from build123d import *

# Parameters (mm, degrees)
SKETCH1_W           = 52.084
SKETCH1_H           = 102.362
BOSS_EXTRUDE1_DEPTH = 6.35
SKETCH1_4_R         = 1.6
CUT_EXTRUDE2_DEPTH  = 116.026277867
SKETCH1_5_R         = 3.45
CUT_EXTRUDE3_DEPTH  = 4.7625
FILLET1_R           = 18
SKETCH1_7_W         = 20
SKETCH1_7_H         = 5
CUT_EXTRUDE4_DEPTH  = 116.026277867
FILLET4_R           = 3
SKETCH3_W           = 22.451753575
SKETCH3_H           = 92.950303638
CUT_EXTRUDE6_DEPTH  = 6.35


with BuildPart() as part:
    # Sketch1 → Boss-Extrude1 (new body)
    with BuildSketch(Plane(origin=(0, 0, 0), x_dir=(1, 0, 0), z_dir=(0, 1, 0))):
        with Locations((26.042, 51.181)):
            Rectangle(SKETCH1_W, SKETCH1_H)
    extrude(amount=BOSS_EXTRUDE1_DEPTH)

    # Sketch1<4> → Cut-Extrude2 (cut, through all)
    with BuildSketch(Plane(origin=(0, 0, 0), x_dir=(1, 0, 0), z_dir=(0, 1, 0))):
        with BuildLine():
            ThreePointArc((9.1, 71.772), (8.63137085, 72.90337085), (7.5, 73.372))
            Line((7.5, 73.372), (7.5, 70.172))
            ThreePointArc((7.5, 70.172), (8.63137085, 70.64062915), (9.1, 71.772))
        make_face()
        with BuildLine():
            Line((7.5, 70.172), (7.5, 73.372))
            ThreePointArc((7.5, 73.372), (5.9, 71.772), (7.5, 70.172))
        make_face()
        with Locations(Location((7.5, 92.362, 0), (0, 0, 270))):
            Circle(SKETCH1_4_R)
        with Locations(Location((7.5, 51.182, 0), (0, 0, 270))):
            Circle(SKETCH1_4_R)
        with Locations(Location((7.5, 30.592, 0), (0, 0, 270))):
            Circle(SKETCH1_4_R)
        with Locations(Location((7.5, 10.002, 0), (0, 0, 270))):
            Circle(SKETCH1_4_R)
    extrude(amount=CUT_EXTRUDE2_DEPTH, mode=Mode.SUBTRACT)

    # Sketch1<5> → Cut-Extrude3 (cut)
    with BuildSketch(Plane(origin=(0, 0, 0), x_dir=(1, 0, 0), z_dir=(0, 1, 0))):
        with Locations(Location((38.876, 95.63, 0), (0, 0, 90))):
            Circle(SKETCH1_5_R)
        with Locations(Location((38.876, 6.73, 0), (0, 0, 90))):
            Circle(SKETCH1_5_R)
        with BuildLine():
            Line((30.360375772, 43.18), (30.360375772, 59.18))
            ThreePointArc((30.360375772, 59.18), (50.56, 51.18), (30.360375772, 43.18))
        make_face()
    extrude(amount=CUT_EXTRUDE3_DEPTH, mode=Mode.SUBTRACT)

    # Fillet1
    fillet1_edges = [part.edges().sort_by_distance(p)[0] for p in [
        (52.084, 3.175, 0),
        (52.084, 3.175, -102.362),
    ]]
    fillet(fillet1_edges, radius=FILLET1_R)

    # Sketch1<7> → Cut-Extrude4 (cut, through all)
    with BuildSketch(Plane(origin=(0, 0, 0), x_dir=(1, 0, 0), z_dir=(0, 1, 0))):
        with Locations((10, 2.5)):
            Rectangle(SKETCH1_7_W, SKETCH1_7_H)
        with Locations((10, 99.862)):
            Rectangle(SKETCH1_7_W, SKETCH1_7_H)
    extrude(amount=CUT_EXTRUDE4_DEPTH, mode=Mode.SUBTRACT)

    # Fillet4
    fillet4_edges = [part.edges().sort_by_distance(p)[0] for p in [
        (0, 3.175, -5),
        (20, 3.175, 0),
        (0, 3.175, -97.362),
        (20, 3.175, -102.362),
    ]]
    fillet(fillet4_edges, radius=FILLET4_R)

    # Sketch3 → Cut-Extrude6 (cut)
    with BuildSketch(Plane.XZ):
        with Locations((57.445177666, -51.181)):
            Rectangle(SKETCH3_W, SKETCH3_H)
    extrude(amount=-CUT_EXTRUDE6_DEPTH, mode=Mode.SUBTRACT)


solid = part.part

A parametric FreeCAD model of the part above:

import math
import FreeCAD as App
import Part
import Sketcher


def edges_at(feature, points):
    """Names of the edges that pass closest to the given points."""
    edges = feature.Shape.Edges
    near = lambda p: min(range(len(edges)), key=lambda i: edges[i].distToShape(Part.Vertex(*p))[0])
    return sorted({f"Edge{near(p) + 1}" for p in points})

doc = App.newDocument("Part")
body = doc.addObject("PartDesign::Body", "Body")

sketch1 = doc.addObject("Sketcher::SketchObject", "Sketch")
body.addObject(sketch1)
sketch1.AttachmentSupport = (doc.XZ_Plane, [""])
sketch1.MapMode = "FlatFace"
sketch1.addGeometry(Part.LineSegment(App.Vector(0, -102, 0), App.Vector(0, 0, 0)), False)
sketch1.addGeometry(Part.LineSegment(App.Vector(0, 0, 0), App.Vector(52, 0, 0)), False)
sketch1.addGeometry(Part.LineSegment(App.Vector(52, 0, 0), App.Vector(52, -102, 0)), False)
sketch1.addGeometry(Part.LineSegment(App.Vector(52, -102, 0), App.Vector(0, -102, 0)), False)
sketch1.addConstraint(Sketcher.Constraint("Coincident", 0, 2, 1, 1))
sketch1.addConstraint(Sketcher.Constraint("Coincident", 1, 2, 2, 1))
sketch1.addConstraint(Sketcher.Constraint("Coincident", 2, 2, 3, 1))
sketch1.addConstraint(Sketcher.Constraint("Coincident", 3, 2, 0, 1))
sketch1.addConstraint(Sketcher.Constraint("Vertical", 0))
sketch1.addConstraint(Sketcher.Constraint("Horizontal", 1))
sketch1.addConstraint(Sketcher.Constraint("Vertical", 2))
sketch1.addConstraint(Sketcher.Constraint("Horizontal", 3))
sketch1.addConstraint(Sketcher.Constraint("Coincident", 0, 2, -1, 1))
sketch1.addConstraint(Sketcher.Constraint("DistanceX", 1, 1, 1, 2, 52.084))
sketch1.addConstraint(Sketcher.Constraint("DistanceY", 0, 1, 0, 2, 102.362))
pad1 = doc.addObject("PartDesign::Pad", "Pad")
body.addObject(pad1)
pad1.Profile = sketch1
pad1.Length = 6.35
pad1.Reversed = True

sketch2 = doc.addObject("Sketcher::SketchObject", "Sketch001")
body.addObject(sketch2)
sketch2.AttachmentSupport = (doc.XZ_Plane, [""])
sketch2.MapMode = "FlatFace"
sketch2.addGeometry(Part.ArcOfCircle(Part.Circle(App.Vector(7.5, -71.8, 0), App.Vector(0, 0, 1), 1.6), math.radians(-90), math.radians(0)), False)
sketch2.addGeometry(Part.ArcOfCircle(Part.Circle(App.Vector(7.5, -71.8, 0), App.Vector(0, 0, 1), 1.6), math.radians(90), math.radians(270)), False)
sketch2.addGeometry(Part.ArcOfCircle(Part.Circle(App.Vector(7.5, -71.8, 0), App.Vector(0, 0, 1), 1.6), math.radians(0), math.radians(90)), False)
sketch2.addGeometry(Part.Circle(App.Vector(7.5, -92.4, 0), App.Vector(0, 0, 1), 1.6), False)
sketch2.addGeometry(Part.Circle(App.Vector(7.5, -51.2, 0), App.Vector(0, 0, 1), 1.6), False)
sketch2.addGeometry(Part.Circle(App.Vector(7.5, -30.6, 0), App.Vector(0, 0, 1), 1.6), False)
sketch2.addGeometry(Part.Circle(App.Vector(7.5, -10, 0), App.Vector(0, 0, 1), 1.6), False)
sketch2.addConstraint(Sketcher.Constraint("Tangent", 0, 1, 1, 2))
sketch2.addConstraint(Sketcher.Constraint("Tangent", 1, 1, 2, 2))
sketch2.addConstraint(Sketcher.Constraint("Tangent", 2, 1, 0, 2))
sketch2.addConstraint(Sketcher.Constraint("Equal", 2, 3))
sketch2.addConstraint(Sketcher.Constraint("Equal", 3, 4))
sketch2.addConstraint(Sketcher.Constraint("Equal", 4, 5))
sketch2.addConstraint(Sketcher.Constraint("Equal", 5, 6))
sketch2.addConstraint(Sketcher.Constraint("Horizontal", 1, 3, 2, 1))
sketch2.addConstraint(Sketcher.Constraint("Vertical", 2, 3, 3, 3))
sketch2.addConstraint(Sketcher.Constraint("Vertical", 3, 3, 4, 3))
sketch2.addConstraint(Sketcher.Constraint("Vertical", 4, 3, 5, 3))
sketch2.addConstraint(Sketcher.Constraint("Vertical", 5, 3, 6, 3))
sketch2.addConstraint(Sketcher.Constraint("Vertical", 6, 3, 0, 1))
sketch2.addConstraint(Sketcher.Constraint("Vertical", 0, 1, 1, 1))
sketch2.addConstraint(Sketcher.Constraint("Diameter", 3, 3.2))
sketch2.addConstraint(Sketcher.Constraint("DistanceX", -1, 1, 0, 3, 7.5))
sketch2.addConstraint(Sketcher.Constraint("DistanceY", 3, 3, 0, 3, 20.59))
sketch2.addConstraint(Sketcher.Constraint("DistanceY", 0, 3, 4, 3, 20.59))
sketch2.addConstraint(Sketcher.Constraint("DistanceY", 4, 3, 5, 3, 20.59))
sketch2.addConstraint(Sketcher.Constraint("DistanceY", 5, 3, 6, 3, 20.59))
sketch2.addConstraint(Sketcher.Constraint("DistanceY", 0, 3, -1, 1, 71.772))
pocket1 = doc.addObject("PartDesign::Pocket", "Pocket")
body.addObject(pocket1)
pocket1.Profile = sketch2
pocket1.Type = "ThroughAll"

sketch3 = doc.addObject("Sketcher::SketchObject", "Sketch002")
body.addObject(sketch3)
sketch3.AttachmentSupport = (doc.XZ_Plane, [""])
sketch3.MapMode = "FlatFace"
sketch3.addGeometry(Part.Circle(App.Vector(38.9, -95.6, 0), App.Vector(0, 0, 1), 3.5), False)
sketch3.addGeometry(Part.Circle(App.Vector(38.9, -6.7, 0), App.Vector(0, 0, 1), 3.5), False)
sketch3.addGeometry(Part.LineSegment(App.Vector(30.4, -59.2, 0), App.Vector(30.4, -43.2, 0)), False)
sketch3.addGeometry(Part.ArcOfCircle(Part.Circle(App.Vector(38.9, -51.2, 0), App.Vector(0, 0, 1), 11.7), math.radians(-137), math.radians(137)), False)
sketch3.addConstraint(Sketcher.Constraint("Coincident", 2, 1, 3, 1))
sketch3.addConstraint(Sketcher.Constraint("Coincident", 3, 2, 2, 2))
sketch3.addConstraint(Sketcher.Constraint("Vertical", 2))
sketch3.addConstraint(Sketcher.Constraint("Equal", 0, 1))
sketch3.addConstraint(Sketcher.Constraint("Vertical", 0, 3, 1, 3))
sketch3.addConstraint(Sketcher.Constraint("Vertical", 1, 3, 3, 3))
sketch3.addConstraint(Sketcher.Constraint("Diameter", 0, 6.9))
sketch3.addConstraint(Sketcher.Constraint("DistanceY", 2, 1, 2, 2, 16.0))
sketch3.addConstraint(Sketcher.Constraint("Radius", 3, 11.684))
sketch3.addConstraint(Sketcher.Constraint("DistanceY", 0, 3, 1, 3, 88.9))
sketch3.addConstraint(Sketcher.Constraint("DistanceY", 0, 3, -1, 1, 95.63))
sketch3.addConstraint(Sketcher.Constraint("DistanceY", 3, 3, -1, 1, 51.18))
sketch3.addConstraint(Sketcher.Constraint("DistanceX", -1, 1, 0, 3, 38.876))
pocket2 = doc.addObject("PartDesign::Pocket", "Pocket001")
body.addObject(pocket2)
pocket2.Profile = sketch3
pocket2.Length = 4.7625
doc.recompute()

fillet = doc.addObject("PartDesign::Fillet", "Fillet")
body.addObject(fillet)
fillet.Base = (pocket2, edges_at(pocket2, [(52.084, 3.175, 0), (52.084, 3.175, -102.362)]))
fillet.Radius = 18

sketch4 = doc.addObject("Sketcher::SketchObject", "Sketch003")
body.addObject(sketch4)
sketch4.AttachmentSupport = (doc.XZ_Plane, [""])
sketch4.MapMode = "FlatFace"
sketch4.addGeometry(Part.LineSegment(App.Vector(0, -5, 0), App.Vector(0, 0, 0)), False)
sketch4.addGeometry(Part.LineSegment(App.Vector(0, 0, 0), App.Vector(20, 0, 0)), False)
sketch4.addGeometry(Part.LineSegment(App.Vector(20, 0, 0), App.Vector(20, -5, 0)), False)
sketch4.addGeometry(Part.LineSegment(App.Vector(20, -5, 0), App.Vector(0, -5, 0)), False)
sketch4.addGeometry(Part.LineSegment(App.Vector(0, -102, 0), App.Vector(0, -97, 0)), False)
sketch4.addGeometry(Part.LineSegment(App.Vector(0, -97, 0), App.Vector(20, -97, 0)), False)
sketch4.addGeometry(Part.LineSegment(App.Vector(20, -97, 0), App.Vector(20, -102, 0)), False)
sketch4.addGeometry(Part.LineSegment(App.Vector(20, -102, 0), App.Vector(0, -102, 0)), False)
sketch4.addConstraint(Sketcher.Constraint("Coincident", 0, 2, 1, 1))
sketch4.addConstraint(Sketcher.Constraint("Coincident", 1, 2, 2, 1))
sketch4.addConstraint(Sketcher.Constraint("Coincident", 2, 2, 3, 1))
sketch4.addConstraint(Sketcher.Constraint("Coincident", 3, 2, 0, 1))
sketch4.addConstraint(Sketcher.Constraint("Coincident", 4, 2, 5, 1))
sketch4.addConstraint(Sketcher.Constraint("Coincident", 5, 2, 6, 1))
sketch4.addConstraint(Sketcher.Constraint("Coincident", 6, 2, 7, 1))
sketch4.addConstraint(Sketcher.Constraint("Coincident", 7, 2, 4, 1))
sketch4.addConstraint(Sketcher.Constraint("Vertical", 0))
sketch4.addConstraint(Sketcher.Constraint("Horizontal", 1))
sketch4.addConstraint(Sketcher.Constraint("Vertical", 2))
sketch4.addConstraint(Sketcher.Constraint("Horizontal", 3))
sketch4.addConstraint(Sketcher.Constraint("Vertical", 4))
sketch4.addConstraint(Sketcher.Constraint("Horizontal", 5))
sketch4.addConstraint(Sketcher.Constraint("Vertical", 6))
sketch4.addConstraint(Sketcher.Constraint("Horizontal", 7))
sketch4.addConstraint(Sketcher.Constraint("Coincident", 0, 2, -1, 1))
sketch4.addConstraint(Sketcher.Constraint("PointOnObject", 4, 2, -2))
sketch4.addConstraint(Sketcher.Constraint("Vertical", 2, 2, 5, 2))
sketch4.addConstraint(Sketcher.Constraint("Equal", 2, 4))
sketch4.addConstraint(Sketcher.Constraint("DistanceX", 1, 1, 1, 2, 20.0))
sketch4.addConstraint(Sketcher.Constraint("DistanceY", 0, 1, 0, 2, 5.0))
sketch4.addConstraint(Sketcher.Constraint("DistanceY", 4, 2, -1, 1, 97.362))
pocket3 = doc.addObject("PartDesign::Pocket", "Pocket002")
body.addObject(pocket3)
pocket3.Profile = sketch4
pocket3.Type = "ThroughAll"
doc.recompute()

fillet2 = doc.addObject("PartDesign::Fillet", "Fillet001")
body.addObject(fillet2)
fillet2.Base = (pocket3, edges_at(pocket3, [
    (0, 3.175, -5),
    (20, 3.175, 0),
    (0, 3.175, -97.362),
    (20, 3.175, -102.362),
]))
fillet2.Radius = 3

sketch5 = doc.addObject("Sketcher::SketchObject", "Sketch004")
body.addObject(sketch5)
sketch5.AttachmentSupport = (doc.XZ_Plane, [""])
sketch5.MapMode = "FlatFace"
sketch5.addGeometry(Part.LineSegment(App.Vector(46, -5, 0), App.Vector(46, -98, 0)), False)
sketch5.addGeometry(Part.LineSegment(App.Vector(46, -98, 0), App.Vector(69, -98, 0)), False)
sketch5.addGeometry(Part.LineSegment(App.Vector(69, -98, 0), App.Vector(69, -5, 0)), False)
sketch5.addGeometry(Part.LineSegment(App.Vector(69, -5, 0), App.Vector(46, -5, 0)), False)
sketch5.addConstraint(Sketcher.Constraint("Coincident", 0, 2, 1, 1))
sketch5.addConstraint(Sketcher.Constraint("Coincident", 1, 2, 2, 1))
sketch5.addConstraint(Sketcher.Constraint("Coincident", 2, 2, 3, 1))
sketch5.addConstraint(Sketcher.Constraint("Coincident", 3, 2, 0, 1))
sketch5.addConstraint(Sketcher.Constraint("Vertical", 0))
sketch5.addConstraint(Sketcher.Constraint("Horizontal", 1))
sketch5.addConstraint(Sketcher.Constraint("Vertical", 2))
sketch5.addConstraint(Sketcher.Constraint("Horizontal", 3))
sketch5.addConstraint(Sketcher.Constraint("DistanceX", -1, 1, 0, 2, 46.219301))
sketch5.addConstraint(Sketcher.Constraint("DistanceX", 1, 1, 1, 2, 22.451754))
sketch5.addConstraint(Sketcher.Constraint("DistanceY", 0, 2, 0, 1, 92.950304))
sketch5.addConstraint(Sketcher.Constraint("DistanceY", 0, 2, -1, 1, 97.656152))
pocket4 = doc.addObject("PartDesign::Pocket", "Pocket003")
body.addObject(pocket4)
pocket4.Profile = sketch5
pocket4.Length = 6.35

doc.recompute()
